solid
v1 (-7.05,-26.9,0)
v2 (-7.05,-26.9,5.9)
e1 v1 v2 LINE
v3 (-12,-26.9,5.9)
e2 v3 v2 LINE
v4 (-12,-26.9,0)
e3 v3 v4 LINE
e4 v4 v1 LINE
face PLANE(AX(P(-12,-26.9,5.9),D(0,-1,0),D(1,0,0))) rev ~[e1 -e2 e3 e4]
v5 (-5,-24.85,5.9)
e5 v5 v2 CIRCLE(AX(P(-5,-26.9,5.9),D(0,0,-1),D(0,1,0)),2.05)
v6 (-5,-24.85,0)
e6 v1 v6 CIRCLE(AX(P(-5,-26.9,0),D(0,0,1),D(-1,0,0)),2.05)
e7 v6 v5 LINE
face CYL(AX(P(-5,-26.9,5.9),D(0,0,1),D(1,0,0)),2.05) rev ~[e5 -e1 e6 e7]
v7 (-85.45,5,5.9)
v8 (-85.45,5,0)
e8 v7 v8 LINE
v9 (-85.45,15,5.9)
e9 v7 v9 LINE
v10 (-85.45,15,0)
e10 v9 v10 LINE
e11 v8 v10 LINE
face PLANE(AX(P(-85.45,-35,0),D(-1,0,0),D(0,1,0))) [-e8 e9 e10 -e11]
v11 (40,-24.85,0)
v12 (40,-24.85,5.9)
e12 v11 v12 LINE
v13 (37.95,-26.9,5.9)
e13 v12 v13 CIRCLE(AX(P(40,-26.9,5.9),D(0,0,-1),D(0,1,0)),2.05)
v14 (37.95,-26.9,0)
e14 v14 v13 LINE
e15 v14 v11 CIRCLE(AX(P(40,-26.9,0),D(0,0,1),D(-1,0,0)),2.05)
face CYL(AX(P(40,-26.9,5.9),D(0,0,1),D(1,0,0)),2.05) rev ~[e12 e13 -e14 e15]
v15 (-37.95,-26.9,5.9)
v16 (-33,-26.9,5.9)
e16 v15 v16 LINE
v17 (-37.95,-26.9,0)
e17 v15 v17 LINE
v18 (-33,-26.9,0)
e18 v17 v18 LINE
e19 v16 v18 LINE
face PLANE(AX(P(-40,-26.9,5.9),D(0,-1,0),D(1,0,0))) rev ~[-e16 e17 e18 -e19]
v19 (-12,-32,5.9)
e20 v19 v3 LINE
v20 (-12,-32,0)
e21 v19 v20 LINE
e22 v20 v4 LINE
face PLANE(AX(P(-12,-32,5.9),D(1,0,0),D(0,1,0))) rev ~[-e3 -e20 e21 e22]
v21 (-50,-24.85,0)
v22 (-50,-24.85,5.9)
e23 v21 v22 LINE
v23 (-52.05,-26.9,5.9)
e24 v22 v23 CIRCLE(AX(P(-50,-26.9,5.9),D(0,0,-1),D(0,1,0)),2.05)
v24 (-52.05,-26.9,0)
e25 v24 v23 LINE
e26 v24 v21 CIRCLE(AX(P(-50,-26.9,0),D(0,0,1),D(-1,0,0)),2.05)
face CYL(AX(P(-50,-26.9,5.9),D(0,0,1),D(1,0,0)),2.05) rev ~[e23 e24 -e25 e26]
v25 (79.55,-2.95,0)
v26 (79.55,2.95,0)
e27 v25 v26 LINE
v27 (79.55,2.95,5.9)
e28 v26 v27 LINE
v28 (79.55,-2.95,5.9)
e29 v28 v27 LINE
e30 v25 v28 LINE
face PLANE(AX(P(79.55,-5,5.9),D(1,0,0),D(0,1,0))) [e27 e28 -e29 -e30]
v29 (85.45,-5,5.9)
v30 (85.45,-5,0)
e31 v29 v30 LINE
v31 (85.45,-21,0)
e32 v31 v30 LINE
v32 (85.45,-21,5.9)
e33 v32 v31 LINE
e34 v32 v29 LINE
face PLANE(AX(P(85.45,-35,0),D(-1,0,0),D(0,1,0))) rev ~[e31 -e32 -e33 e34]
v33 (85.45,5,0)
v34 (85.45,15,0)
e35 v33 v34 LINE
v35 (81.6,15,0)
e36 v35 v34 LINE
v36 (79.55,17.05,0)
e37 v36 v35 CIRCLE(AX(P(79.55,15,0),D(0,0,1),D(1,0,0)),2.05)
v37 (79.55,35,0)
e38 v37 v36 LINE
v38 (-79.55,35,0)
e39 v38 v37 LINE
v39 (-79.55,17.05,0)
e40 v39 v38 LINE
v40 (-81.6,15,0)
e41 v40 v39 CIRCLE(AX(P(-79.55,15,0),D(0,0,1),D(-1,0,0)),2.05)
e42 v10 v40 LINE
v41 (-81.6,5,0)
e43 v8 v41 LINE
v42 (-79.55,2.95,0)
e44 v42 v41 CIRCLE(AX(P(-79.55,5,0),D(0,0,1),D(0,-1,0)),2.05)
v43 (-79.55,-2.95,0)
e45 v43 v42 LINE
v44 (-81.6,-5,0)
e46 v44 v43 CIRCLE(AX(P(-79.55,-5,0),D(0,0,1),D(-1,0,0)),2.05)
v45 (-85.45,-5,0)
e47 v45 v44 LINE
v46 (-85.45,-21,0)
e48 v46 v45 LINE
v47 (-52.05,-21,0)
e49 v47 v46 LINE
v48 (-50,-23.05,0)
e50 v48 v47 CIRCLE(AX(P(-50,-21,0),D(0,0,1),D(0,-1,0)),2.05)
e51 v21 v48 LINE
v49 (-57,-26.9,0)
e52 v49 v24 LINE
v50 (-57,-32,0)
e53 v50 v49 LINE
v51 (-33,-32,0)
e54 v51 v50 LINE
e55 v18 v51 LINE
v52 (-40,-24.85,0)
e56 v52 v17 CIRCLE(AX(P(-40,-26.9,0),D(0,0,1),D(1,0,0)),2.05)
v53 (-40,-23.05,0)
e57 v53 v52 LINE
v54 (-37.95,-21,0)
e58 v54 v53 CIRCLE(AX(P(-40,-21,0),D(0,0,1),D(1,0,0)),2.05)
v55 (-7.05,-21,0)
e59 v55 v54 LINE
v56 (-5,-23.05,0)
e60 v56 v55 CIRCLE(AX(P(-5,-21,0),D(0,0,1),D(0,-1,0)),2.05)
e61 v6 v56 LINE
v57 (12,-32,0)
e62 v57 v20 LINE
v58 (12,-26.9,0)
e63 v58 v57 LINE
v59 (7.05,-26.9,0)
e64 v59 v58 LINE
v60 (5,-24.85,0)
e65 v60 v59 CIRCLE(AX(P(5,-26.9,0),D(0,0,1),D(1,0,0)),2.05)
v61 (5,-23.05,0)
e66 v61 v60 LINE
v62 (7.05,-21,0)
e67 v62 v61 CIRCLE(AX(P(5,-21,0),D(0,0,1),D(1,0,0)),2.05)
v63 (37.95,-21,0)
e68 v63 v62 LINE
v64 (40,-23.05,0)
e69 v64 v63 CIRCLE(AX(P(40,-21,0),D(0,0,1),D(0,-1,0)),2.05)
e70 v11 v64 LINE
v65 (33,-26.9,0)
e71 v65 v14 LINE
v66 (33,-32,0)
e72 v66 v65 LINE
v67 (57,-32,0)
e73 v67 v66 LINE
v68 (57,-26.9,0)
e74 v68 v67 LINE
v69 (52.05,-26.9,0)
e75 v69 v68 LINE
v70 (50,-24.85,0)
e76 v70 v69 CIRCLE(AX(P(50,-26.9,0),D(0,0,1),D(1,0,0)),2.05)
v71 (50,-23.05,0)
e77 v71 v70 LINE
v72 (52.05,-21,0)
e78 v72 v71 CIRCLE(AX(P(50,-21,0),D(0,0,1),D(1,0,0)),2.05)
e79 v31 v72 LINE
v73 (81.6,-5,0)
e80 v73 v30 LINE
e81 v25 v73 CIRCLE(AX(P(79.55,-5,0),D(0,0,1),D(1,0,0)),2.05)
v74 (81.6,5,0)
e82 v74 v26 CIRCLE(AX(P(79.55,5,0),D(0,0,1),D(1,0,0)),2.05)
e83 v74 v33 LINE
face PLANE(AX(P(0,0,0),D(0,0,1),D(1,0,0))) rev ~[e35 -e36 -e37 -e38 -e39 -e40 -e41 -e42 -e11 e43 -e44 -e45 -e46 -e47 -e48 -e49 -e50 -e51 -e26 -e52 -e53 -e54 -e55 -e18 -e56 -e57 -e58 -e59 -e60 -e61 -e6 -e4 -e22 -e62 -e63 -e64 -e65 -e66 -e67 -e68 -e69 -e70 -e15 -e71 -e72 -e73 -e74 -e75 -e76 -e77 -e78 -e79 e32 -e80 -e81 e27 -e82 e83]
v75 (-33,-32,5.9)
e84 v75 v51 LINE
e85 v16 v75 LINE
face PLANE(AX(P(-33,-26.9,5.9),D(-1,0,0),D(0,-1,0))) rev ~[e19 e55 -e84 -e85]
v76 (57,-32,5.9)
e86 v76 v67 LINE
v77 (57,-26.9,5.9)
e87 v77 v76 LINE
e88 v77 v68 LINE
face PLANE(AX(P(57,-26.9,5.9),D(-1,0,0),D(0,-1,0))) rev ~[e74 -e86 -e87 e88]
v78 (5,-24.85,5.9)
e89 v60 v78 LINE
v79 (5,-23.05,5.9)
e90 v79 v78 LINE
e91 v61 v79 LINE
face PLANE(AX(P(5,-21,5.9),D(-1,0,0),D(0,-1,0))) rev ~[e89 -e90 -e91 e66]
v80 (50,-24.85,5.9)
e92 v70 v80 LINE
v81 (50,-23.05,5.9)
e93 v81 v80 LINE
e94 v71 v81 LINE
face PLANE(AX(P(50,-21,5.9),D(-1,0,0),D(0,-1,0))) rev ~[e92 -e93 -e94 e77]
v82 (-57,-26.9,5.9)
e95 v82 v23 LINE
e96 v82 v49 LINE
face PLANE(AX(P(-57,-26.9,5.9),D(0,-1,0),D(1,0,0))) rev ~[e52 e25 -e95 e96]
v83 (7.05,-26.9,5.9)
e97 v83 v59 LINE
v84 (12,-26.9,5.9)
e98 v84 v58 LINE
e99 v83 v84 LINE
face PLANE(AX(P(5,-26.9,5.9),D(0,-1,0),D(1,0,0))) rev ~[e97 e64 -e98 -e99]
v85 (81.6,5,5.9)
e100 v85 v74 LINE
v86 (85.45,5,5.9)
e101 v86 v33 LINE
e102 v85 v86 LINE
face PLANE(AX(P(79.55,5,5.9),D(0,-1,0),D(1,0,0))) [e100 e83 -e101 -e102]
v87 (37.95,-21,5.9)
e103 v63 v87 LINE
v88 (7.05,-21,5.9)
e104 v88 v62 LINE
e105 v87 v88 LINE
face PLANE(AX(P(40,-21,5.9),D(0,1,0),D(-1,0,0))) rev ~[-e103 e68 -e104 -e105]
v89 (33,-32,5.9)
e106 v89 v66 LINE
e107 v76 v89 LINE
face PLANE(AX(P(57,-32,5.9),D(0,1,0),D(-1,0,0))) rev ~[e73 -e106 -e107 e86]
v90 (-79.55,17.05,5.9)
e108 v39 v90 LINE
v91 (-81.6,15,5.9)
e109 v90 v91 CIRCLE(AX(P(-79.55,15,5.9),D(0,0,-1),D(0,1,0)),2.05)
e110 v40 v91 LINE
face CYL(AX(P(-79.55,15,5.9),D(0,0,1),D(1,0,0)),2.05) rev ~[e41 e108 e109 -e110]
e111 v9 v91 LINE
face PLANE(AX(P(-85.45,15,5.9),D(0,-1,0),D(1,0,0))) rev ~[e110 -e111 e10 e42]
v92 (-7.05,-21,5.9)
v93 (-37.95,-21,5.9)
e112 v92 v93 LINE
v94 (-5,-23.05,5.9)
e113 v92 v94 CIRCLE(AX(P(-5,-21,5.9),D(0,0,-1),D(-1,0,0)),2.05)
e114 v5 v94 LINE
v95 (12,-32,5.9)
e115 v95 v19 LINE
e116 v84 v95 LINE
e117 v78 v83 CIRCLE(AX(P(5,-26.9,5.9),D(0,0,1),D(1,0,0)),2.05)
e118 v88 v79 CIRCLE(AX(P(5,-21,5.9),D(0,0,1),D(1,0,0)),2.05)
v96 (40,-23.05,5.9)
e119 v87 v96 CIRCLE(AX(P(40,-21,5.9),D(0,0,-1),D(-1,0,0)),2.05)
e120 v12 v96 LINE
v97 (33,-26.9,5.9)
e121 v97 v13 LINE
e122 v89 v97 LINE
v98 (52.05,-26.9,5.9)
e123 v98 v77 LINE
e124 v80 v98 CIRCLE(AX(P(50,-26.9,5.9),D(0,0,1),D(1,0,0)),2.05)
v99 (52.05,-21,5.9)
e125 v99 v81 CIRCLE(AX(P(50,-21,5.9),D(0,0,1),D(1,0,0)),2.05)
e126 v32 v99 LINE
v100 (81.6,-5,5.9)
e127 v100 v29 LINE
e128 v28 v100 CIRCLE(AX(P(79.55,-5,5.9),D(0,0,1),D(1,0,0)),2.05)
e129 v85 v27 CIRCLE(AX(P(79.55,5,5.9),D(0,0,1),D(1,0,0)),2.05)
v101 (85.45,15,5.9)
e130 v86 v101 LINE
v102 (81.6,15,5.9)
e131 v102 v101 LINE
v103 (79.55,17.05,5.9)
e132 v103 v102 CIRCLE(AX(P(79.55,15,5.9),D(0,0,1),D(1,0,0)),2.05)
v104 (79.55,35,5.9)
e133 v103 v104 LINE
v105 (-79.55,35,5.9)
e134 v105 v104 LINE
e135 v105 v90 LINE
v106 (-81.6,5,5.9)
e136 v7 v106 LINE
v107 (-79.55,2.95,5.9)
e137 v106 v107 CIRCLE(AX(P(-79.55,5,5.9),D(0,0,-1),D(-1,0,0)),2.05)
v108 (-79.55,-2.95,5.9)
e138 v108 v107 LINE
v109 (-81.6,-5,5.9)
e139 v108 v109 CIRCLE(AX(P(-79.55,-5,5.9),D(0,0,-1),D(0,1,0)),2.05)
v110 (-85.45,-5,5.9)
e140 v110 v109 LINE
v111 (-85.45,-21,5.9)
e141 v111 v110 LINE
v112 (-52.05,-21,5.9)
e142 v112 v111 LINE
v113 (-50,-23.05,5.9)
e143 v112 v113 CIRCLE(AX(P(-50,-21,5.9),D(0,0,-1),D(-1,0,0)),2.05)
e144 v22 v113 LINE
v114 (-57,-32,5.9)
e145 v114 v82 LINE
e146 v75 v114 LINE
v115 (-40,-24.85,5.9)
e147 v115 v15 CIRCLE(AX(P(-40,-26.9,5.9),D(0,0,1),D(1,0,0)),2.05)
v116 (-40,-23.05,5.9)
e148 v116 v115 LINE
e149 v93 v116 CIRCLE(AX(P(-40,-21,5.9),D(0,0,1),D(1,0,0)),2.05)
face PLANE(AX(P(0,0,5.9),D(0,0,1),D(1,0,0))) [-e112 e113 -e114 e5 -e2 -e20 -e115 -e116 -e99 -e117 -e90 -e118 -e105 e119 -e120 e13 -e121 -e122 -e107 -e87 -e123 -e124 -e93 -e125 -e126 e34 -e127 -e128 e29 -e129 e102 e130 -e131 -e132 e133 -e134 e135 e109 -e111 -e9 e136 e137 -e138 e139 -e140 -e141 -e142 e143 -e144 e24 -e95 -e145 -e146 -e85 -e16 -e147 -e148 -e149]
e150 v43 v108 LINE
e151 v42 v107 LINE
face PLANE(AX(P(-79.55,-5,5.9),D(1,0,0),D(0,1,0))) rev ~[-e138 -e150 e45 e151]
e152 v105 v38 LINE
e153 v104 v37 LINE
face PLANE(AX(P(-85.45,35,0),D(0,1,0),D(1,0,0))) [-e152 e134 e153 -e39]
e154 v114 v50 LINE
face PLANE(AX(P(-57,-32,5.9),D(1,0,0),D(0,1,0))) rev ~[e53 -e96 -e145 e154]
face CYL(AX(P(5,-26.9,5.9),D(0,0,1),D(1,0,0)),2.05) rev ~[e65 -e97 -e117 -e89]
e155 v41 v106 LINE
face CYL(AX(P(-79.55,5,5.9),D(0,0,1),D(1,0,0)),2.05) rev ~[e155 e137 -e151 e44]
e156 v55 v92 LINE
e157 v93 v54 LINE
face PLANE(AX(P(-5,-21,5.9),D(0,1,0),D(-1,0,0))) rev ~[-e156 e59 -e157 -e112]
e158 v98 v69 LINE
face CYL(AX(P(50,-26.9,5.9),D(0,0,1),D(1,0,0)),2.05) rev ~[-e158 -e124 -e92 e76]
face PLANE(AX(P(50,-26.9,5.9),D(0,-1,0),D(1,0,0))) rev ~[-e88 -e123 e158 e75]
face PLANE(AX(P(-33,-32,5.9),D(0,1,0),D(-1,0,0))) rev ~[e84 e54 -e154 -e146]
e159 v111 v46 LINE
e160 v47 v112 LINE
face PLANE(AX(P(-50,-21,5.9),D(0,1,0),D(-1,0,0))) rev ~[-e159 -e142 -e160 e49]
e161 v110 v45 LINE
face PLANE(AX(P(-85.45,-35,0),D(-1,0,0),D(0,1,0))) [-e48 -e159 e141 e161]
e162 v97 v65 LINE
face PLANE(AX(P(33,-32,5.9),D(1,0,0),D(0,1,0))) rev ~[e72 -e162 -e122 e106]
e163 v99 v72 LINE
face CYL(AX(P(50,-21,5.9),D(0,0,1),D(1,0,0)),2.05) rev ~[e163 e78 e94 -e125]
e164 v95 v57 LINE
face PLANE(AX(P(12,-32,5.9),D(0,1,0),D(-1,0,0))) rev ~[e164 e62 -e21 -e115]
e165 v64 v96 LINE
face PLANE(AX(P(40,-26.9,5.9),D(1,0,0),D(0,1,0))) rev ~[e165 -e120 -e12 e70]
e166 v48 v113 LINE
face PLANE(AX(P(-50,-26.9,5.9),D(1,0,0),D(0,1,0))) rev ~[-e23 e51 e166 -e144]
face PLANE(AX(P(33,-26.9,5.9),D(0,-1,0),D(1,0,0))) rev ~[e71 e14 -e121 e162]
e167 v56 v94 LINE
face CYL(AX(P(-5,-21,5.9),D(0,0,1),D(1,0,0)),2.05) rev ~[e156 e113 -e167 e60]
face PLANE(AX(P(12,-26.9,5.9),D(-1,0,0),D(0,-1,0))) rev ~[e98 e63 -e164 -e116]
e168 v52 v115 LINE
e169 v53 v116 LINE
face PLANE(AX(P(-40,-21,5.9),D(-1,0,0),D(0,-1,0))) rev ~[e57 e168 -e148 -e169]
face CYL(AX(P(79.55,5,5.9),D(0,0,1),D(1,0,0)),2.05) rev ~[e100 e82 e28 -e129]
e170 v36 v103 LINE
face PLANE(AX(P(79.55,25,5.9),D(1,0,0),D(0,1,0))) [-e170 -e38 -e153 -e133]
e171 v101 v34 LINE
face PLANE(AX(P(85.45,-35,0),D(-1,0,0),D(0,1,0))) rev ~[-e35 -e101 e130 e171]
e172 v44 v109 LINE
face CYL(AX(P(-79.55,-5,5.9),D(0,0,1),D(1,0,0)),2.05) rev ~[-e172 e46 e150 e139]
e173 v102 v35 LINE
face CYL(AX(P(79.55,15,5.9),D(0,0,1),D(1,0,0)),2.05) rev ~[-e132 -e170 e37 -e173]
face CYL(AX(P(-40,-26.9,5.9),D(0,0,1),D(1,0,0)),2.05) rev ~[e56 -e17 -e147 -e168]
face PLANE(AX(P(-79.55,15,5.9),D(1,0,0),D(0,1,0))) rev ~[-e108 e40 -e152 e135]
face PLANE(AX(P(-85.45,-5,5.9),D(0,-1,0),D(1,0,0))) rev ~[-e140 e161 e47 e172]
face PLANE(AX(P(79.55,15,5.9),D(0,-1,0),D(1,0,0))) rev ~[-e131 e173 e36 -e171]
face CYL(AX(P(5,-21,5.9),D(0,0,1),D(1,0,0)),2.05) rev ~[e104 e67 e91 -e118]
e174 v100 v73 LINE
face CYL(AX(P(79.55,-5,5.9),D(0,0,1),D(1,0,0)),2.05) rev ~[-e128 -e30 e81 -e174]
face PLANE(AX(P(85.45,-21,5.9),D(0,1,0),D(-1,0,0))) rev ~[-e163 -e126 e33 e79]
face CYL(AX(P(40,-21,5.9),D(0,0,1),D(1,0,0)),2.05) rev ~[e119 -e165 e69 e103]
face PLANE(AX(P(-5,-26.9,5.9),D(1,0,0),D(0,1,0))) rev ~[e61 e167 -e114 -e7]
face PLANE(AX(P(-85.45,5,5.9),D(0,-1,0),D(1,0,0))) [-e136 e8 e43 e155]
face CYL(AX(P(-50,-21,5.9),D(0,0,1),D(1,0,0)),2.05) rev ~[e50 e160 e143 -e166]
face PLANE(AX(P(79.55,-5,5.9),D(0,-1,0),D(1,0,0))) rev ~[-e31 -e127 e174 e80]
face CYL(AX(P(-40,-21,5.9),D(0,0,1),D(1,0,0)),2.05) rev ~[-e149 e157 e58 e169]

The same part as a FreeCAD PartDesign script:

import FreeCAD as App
import Part
import Sketcher
from FreeCAD import Vector
Q = App.Units.Quantity


def add_polygon(sketch, points):
    """Adds a closed chain of lines whose ends are joined by coincident constraints."""
    first, n = sketch.GeometryCount, len(points)
    for a, b in zip(points, points[1:] + points[:1]):
        sketch.addGeometry(Part.LineSegment(App.Vector(*a, 0), App.Vector(*b, 0)), False)
    for i in range(n):
        sketch.addConstraint(Sketcher.Constraint("Coincident", first + i, 2, first + (i + 1) % n, 1))

doc = App.newDocument("Part")
body = doc.addObject("PartDesign::Body", "Body")

sketch1 = body.newObject("Sketcher::SketchObject", "Sketch")
sketch1.AttachmentSupport = (doc.getObject("XY_Plane"), [""])
sketch1.MapMode = "FlatFace"
add_polygon(sketch1, [(-85, 35), (-85, -35), (85, -35), (85, 35)])
sketch1.addConstraint([
    Sketcher.Constraint("Vertical", 0),
    Sketcher.Constraint("Horizontal", 1),
    Sketcher.Constraint("Vertical", 2),
    Sketcher.Constraint("Horizontal", 3),
    Sketcher.Constraint("Symmetric", 0, 2, 2, 2, -1, 1),
    Sketcher.Constraint("DistanceY", 0, 2, 0, 1, Q("70 mm")),
    Sketcher.Constraint("DistanceX", 1, 1, 1, 2, Q("170.9 mm")),
])
pad1 = body.newObject("PartDesign::Pad", "Pad")
pad1.Profile = sketch1
pad1.Length = 5.9

sketch2 = body.newObject("Sketcher::SketchObject", "Sketch001")
sketch2.AttachmentSupport = (doc.getObject("XY_Plane"), [""])
sketch2.MapMode = "FlatFace"
sketch2.AttachmentOffset = App.Placement(Vector(0, 0, 5.9), App.Rotation())
add_polygon(sketch2, [(-50, -21), (-85, -21), (-85, -35), (85, -35), (85, -21), (50, -21), (50, -27), (57, -27), (57, -32), (33, -32), (33, -27), (40, -27), (40, -21), (5, -21), (5, -27), (12, -27), (12, -32), (-12, -32), (-12, -27), (-5, -27), (-5, -21), (-40, -21), (-40, -27), (-33, -27), (-33, -32), (-57, -32), (-57, -27), (-50, -27)])
sketch2.addConstraint([
    Sketcher.Constraint("Horizontal", 0),
    Sketcher.Constraint("Vertical", 1),
    Sketcher.Constraint("Horizontal", 2),
    Sketcher.Constraint("Vertical", 3),
    Sketcher.Constraint("Horizontal", 4),
    Sketcher.Constraint("Vertical", 5),
    Sketcher.Constraint("Horizontal", 6),
    Sketcher.Constraint("Vertical", 7),
    Sketcher.Constraint("Horizontal", 8),
    Sketcher.Constraint("Vertical", 9),
    Sketcher.Constraint("Horizontal", 10),
    Sketcher.Constraint("Vertical", 11),
    Sketcher.Constraint("Horizontal", 12),
    Sketcher.Constraint("Vertical", 13),
    Sketcher.Constraint("Horizontal", 14),
    Sketcher.Constraint("Vertical", 15),
    Sketcher.Constraint("Horizontal", 16),
    Sketcher.Constraint("Vertical", 17),
    Sketcher.Constraint("Horizontal", 18),
    Sketcher.Constraint("Vertical", 19),
    Sketcher.Constraint("Horizontal", 20),
    Sketcher.Constraint("Vertical", 21),
    Sketcher.Constraint("Horizontal", 22),
    Sketcher.Constraint("Vertical", 23),
    Sketcher.Constraint("Horizontal", 24),
    Sketcher.Constraint("Vertical", 25),
    Sketcher.Constraint("Horizontal", 26),
    Sketcher.Constraint("Vertical", 27),
    Sketcher.Constraint("Symmetric", 0, 2, 3, 2, -2),
    Sketcher.Constraint("Symmetric", 14, 2, 17, 2, -2),
    Sketcher.Constraint("Symmetric", 12, 2, 19, 2, -2),
    Sketcher.Constraint("Symmetric", 10, 2, 21, 2, -2),
    Sketcher.Constraint("Symmetric", 8, 2, 23, 2, -2),
    Sketcher.Constraint("Symmetric", 6, 2, 25, 2, -2),
    Sketcher.Constraint("Horizontal", 6, 2, 9, 2),
    Sketcher.Constraint("Horizontal", 4, 2, 11, 2),
    Sketcher.Constraint("Horizontal", 10, 2, 13, 2),
    Sketcher.Constraint("Horizontal", 8, 2, 15, 2),
    Sketcher.Constraint("Equal", 0, 4),
    Sketcher.Constraint("Equal", 6, 10),
    Sketcher.Constraint("Equal", 10, 14),
    Sketcher.Constraint("Equal", 8, 16),
    Sketcher.Constraint("DistanceX", 6, 1, 6, 2, Q("7 mm")),
    Sketcher.Constraint("DistanceX", 8, 2, 8, 1, Q("24 mm")),
    Sketcher.Constraint("DistanceX", 12, 2, 12, 1, Q("35 mm")),
    Sketcher.Constraint("DistanceY", 1, 2, 1, 1, Q("14 mm")),
    Sketcher.Constraint("DistanceX", 2, 1, 2, 2, Q("170.9 mm")),
    Sketcher.Constraint("DistanceY", 5, 2, 5, 1, Q("5.9 mm")),
    Sketcher.Constraint("DistanceY", 7, 2, 7, 1, Q("5.1 mm")),
    Sketcher.Constraint("DistanceY", 0, 2, -1, 1, Q("21 mm")),
])
pocket1 = body.newObject("PartDesign::Pocket", "Pocket")
pocket1.Profile = sketch2
pocket1.Type = "ThroughAll"

sketch3 = body.newObject("Sketcher::SketchObject", "Sketch002")
sketch3.AttachmentSupport = (doc.getObject("XY_Plane"), [""])
sketch3.MapMode = "FlatFace"
sketch3.AttachmentOffset = App.Placement(Vector(0, 0, 5.9), App.Rotation())
add_polygon(sketch3, [(80, 25), (80, 15), (85, 15), (85, 25)])
add_polygon(sketch3, [(80, 5), (80, -5), (85, -5), (85, 5)])
add_polygon(sketch3, [(-85, 5), (-85, -5), (-80, -5), (-80, 5)])
add_polygon(sketch3, [(-85, 25), (-85, 15), (-80, 15), (-80, 25)])
sketch3.addConstraint([
    Sketcher.Constraint("Vertical", 0),
    Sketcher.Constraint("Horizontal", 1),
    Sketcher.Constraint("Vertical", 2),
    Sketcher.Constraint("Horizontal", 3),
    Sketcher.Constraint("Vertical", 4),
    Sketcher.Constraint("Horizontal", 5),
    Sketcher.Constraint("Vertical", 6),
    Sketcher.Constraint("Horizontal", 7),
    Sketcher.Constraint("Vertical", 8),
    Sketcher.Constraint("Horizontal", 9),
    Sketcher.Constraint("Vertical", 10),
    Sketcher.Constraint("Horizontal", 11),
    Sketcher.Constraint("Vertical", 12),
    Sketcher.Constraint("Horizontal", 13),
    Sketcher.Constraint("Vertical", 14),
    Sketcher.Constraint("Horizontal", 15),
    Sketcher.Constraint("Symmetric", 6, 2, 8, 2, -1, 1),
    Sketcher.Constraint("Symmetric", 4, 2, 10, 2, -1, 1),
    Sketcher.Constraint("Symmetric", 1, 2, 12, 2, -2),
    Sketcher.Constraint("Symmetric", 3, 2, 14, 2, -2),
    Sketcher.Constraint("Horizontal", 5, 2, 8, 2),
    Sketcher.Constraint("Vertical", 3, 2, 4, 2),
    Sketcher.Constraint("Vertical", 2, 2, 5, 2),
    Sketcher.Constraint("Equal", 2, 4),
    Sketcher.Constraint("DistanceY", 0, 2, 0, 1, Q("10 mm")),
    Sketcher.Constraint("DistanceX", 1, 1, 1, 2, Q("5.9 mm")),
    Sketcher.Constraint("DistanceY", -1, 1, 0, 2, Q("15 mm")),
    Sketcher.Constraint("DistanceX", 8, 2, 4, 2, Q("165 mm")),
])
pocket2 = body.newObject("PartDesign::Pocket", "Pocket001")
pocket2.Profile = sketch3
pocket2.Type = "ThroughAll"

sketch4 = body.newObject("Sketcher::SketchObject", "Sketch003")
sketch4.AttachmentSupport = (doc.getObject("XY_Plane"), [""])
sketch4.MapMode = "FlatFace"
sketch4.AttachmentOffset = App.Placement(Vector(0, 0, 5.9), App.Rotation())
add_polygon(sketch4, [(80, 35), (80, 25), (85, 25), (85, 35)])
add_polygon(sketch4, [(-85, 35), (-85, 25), (-80, 25), (-80, 35)])
sketch4.addConstraint([
    Sketcher.Constraint("Vertical", 0),
    Sketcher.Constraint("Horizontal", 1),
    Sketcher.Constraint("Vertical", 2),
    Sketcher.Constraint("Horizontal", 3),
    Sketcher.Constraint("Vertical", 4),
    Sketcher.Constraint("Horizontal", 5),
    Sketcher.Constraint("Vertical", 6),
    Sketcher.Constraint("Horizontal", 7),
    Sketcher.Constraint("Symmetric", 1, 2, 4, 2, -2),
    Sketcher.Constraint("Symmetric", 3, 2, 6, 2, -2),
    Sketcher.Constraint("DistanceY", 0, 2, 0, 1, Q("10 mm")),
    Sketcher.Constraint("DistanceX", 1, 1, 1, 2, Q("5.9 mm")),
    Sketcher.Constraint("DistanceY", -1, 1, 0, 2, Q("25 mm")),
    Sketcher.Constraint("DistanceX", 4, 2, 0, 2, Q("165 mm")),
])
pocket3 = body.newObject("PartDesign::Pocket", "Pocket002")
pocket3.Profile = sketch4
pocket3.Type = "ThroughAll"

sketch5 = body.newObject("Sketcher::SketchObject", "Sketch004")
sketch5.AttachmentSupport = (doc.getObject("XY_Plane"), [""])
sketch5.MapMode = "FlatFace"
sketch5.AttachmentOffset = App.Placement(Vector(0, 0, 5.9), App.Rotation())
sketch5.addGeometry(Part.Circle(Vector(-50, -26.9, 0), Vector(0, 0, 1), 2), False)
sketch5.addConstraint([
    Sketcher.Constraint("Diameter", 0, Q("4.1 mm")),
    Sketcher.Constraint("DistanceX", 0, 3, -1, 1, Q("50 mm")),
    Sketcher.Constraint("DistanceY", 0, 3, -1, 1, Q("26.9 mm")),
])
pocket4 = body.newObject("PartDesign::Pocket", "Pocket003")
pocket4.Profile = sketch5
pocket4.Type = "UpToFirst"

sketch6 = body.newObject("Sketcher::SketchObject", "Sketch005")
sketch6.AttachmentSupport = (doc.getObject("XY_Plane"), [""])
sketch6.MapMode = "FlatFace"
sketch6.AttachmentOffset = App.Placement(Vector(0, 0, 5.9), App.Rotation())
sketch6.addGeometry(Part.Circle(Vector(-40, -26.9, 0), Vector(0, 0, 1), 2), False)
sketch6.addConstraint([
    Sketcher.Constraint("Diameter", 0, Q("4.1 mm")),
    Sketcher.Constraint("DistanceX", 0, 3, -1, 1, Q("40 mm")),
    Sketcher.Constraint("DistanceY", 0, 3, -1, 1, Q("26.9 mm")),
])
pocket5 = body.newObject("PartDesign::Pocket", "Pocket004")
pocket5.Profile = sketch6
pocket5.Type = "UpToFirst"

sketch7 = body.newObject("Sketcher::SketchObject", "Sketch006")
sketch7.AttachmentSupport = (doc.getObject("XY_Plane"), [""])
sketch7.MapMode = "FlatFace"
sketch7.AttachmentOffset = App.Placement(Vector(0, 0, 5.9), App.Rotation())
sketch7.addGeometry(Part.Circle(Vector(-50, -21, 0), Vector(0, 0, 1), 2), False)
sketch7.addConstraint([
    Sketcher.Constraint("Diameter", 0, Q("4.1 mm")),
    Sketcher.Constraint("DistanceX", 0, 3, -1, 1, Q("50 mm")),
    Sketcher.Constraint("DistanceY", 0, 3, -1, 1, Q("21 mm")),
])
pocket6 = body.newObject("PartDesign::Pocket", "Pocket005")
pocket6.Profile = sketch7
pocket6.Type = "UpToFirst"

sketch8 = body.newObject("Sketcher::SketchObject", "Sketch007")
sketch8.AttachmentSupport = (doc.getObject("XY_Plane"), [""])
sketch8.MapMode = "FlatFace"
sketch8.AttachmentOffset = App.Placement(Vector(0, 0, 5.9), App.Rotation())
sketch8.addGeometry(Part.Circle(Vector(-40, -21, 0), Vector(0, 0, 1), 2), False)
sketch8.addConstraint([
    Sketcher.Constraint("Diameter", 0, Q("4.1 mm")),
    Sketcher.Constraint("DistanceX", 0, 3, -1, 1, Q("40 mm")),
    Sketcher.Constraint("DistanceY", 0, 3, -1, 1, Q("21 mm")),
])
pocket7 = body.newObject("PartDesign::Pocket", "Pocket006")
pocket7.Profile = sketch8
pocket7.Type = "UpToFirst"

sketch9 = body.newObject("Sketcher::SketchObject", "Sketch008")
sketch9.AttachmentSupport = (doc.getObject("XY_Plane"), [""])
sketch9.MapMode = "FlatFace"
sketch9.AttachmentOffset = App.Placement(Vector(0, 0, 5.9), App.Rotation())
sketch9.addGeometry(Part.Circle(Vector(-5, -21, 0), Vector(0, 0, 1), 2), False)
sketch9.addConstraint([
    Sketcher.Constraint("Diameter", 0, Q("4.1 mm")),
    Sketcher.Constraint("DistanceX", 0, 3, -1, 1, Q("5 mm")),
    Sketcher.Constraint("DistanceY", 0, 3, -1, 1, Q("21 mm")),
])
pocket8 = body.newObject("PartDesign::Pocket", "Pocket007")
pocket8.Profile = sketch9
pocket8.Type = "UpToFirst"

sketch10 = body.newObject("Sketcher::SketchObject", "Sketch009")
sketch10.AttachmentSupport = (doc.getObject("XY_Plane"), [""])
sketch10.MapMode = "FlatFace"
sketch10.AttachmentOffset = App.Placement(Vector(0, 0, 5.9), App.Rotation())
sketch10.addGeometry(Part.Circle(Vector(5, -21, 0), Vector(0, 0, 1), 2), False)
sketch10.addConstraint([
    Sketcher.Constraint("Diameter", 0, Q("4.1 mm")),
    Sketcher.Constraint("DistanceX", -1, 1, 0, 3, Q("5 mm")),
    Sketcher.Constraint("DistanceY", 0, 3, -1, 1, Q("21 mm")),
])
pocket9 = body.newObject("PartDesign::Pocket", "Pocket008")
pocket9.Profile = sketch10
pocket9.Type = "UpToFirst"

sketch11 = body.newObject("Sketcher::SketchObject", "Sketch010")
sketch11.AttachmentSupport = (doc.getObject("XY_Plane"), [""])
sketch11.MapMode = "FlatFace"
sketch11.AttachmentOffset = App.Placement(Vector(0, 0, 5.9), App.Rotation())
sketch11.addGeometry(Part.Circle(Vector(-5, -26.9, 0), Vector(0, 0, 1), 2), False)
sketch11.addConstraint([
    Sketcher.Constraint("Diameter", 0, Q("4.1 mm")),
    Sketcher.Constraint("DistanceX", 0, 3, -1, 1, Q("5 mm")),
    Sketcher.Constraint("DistanceY", 0, 3, -1, 1, Q("26.9 mm")),
])
pocket10 = body.newObject("PartDesign::Pocket", "Pocket009")
pocket10.Profile = sketch11
pocket10.Type = "UpToFirst"

sketch12 = body.newObject("Sketcher::SketchObject", "Sketch011")
sketch12.AttachmentSupport = (doc.getObject("XY_Plane"), [""])
sketch12.MapMode = "FlatFace"
sketch12.AttachmentOffset = App.Placement(Vector(0, 0, 5.9), App.Rotation())
sketch12.addGeometry(Part.Circle(Vector(5, -26.9, 0), Vector(0, 0, 1), 2), False)
sketch12.addConstraint([
    Sketcher.Constraint("Diameter", 0, Q("4.1 mm")),
    Sketcher.Constraint("DistanceX", -1, 1, 0, 3, Q("5 mm")),
    Sketcher.Constraint("DistanceY", 0, 3, -1, 1, Q("26.9 mm")),
])
pocket11 = body.newObject("PartDesign::Pocket", "Pocket010")
pocket11.Profile = sketch12
pocket11.Type = "UpToFirst"

sketch13 = body.newObject("Sketcher::SketchObject", "Sketch012")
sketch13.AttachmentSupport = (doc.getObject("XY_Plane"), [""])
sketch13.MapMode = "FlatFace"
sketch13.AttachmentOffset = App.Placement(Vector(0, 0, 5.9), App.Rotation())
sketch13.addGeometry(Part.Circle(Vector(40, -26.9, 0), Vector(0, 0, 1), 2), False)
sketch13.addConstraint([
    Sketcher.Constraint("Diameter", 0, Q("4.1 mm")),
    Sketcher.Constraint("DistanceX", -1, 1, 0, 3, Q("40 mm")),
    Sketcher.Constraint("DistanceY", 0, 3, -1, 1, Q("26.9 mm")),
])
pocket12 = body.newObject("PartDesign::Pocket", "Pocket011")
pocket12.Profile = sketch13
pocket12.Type = "UpToFirst"

sketch14 = body.newObject("Sketcher::SketchObject", "Sketch013")
sketch14.AttachmentSupport = (doc.getObject("XY_Plane"), [""])
sketch14.MapMode = "FlatFace"
sketch14.AttachmentOffset = App.Placement(Vector(0, 0, 5.9), App.Rotation())
sketch14.addGeometry(Part.Circle(Vector(50, -26.9, 0), Vector(0, 0, 1), 2), False)
sketch14.addConstraint([
    Sketcher.Constraint("Diameter", 0, Q("4.1 mm")),
    Sketcher.Constraint("DistanceX", -1, 1, 0, 3, Q("50 mm")),
    Sketcher.Constraint("DistanceY", 0, 3, -1, 1, Q("26.9 mm")),
])
pocket13 = body.newObject("PartDesign::Pocket", "Pocket012")
pocket13.Profile = sketch14
pocket13.Type = "UpToFirst"

sketch15 = body.newObject("Sketcher::SketchObject", "Sketch014")
sketch15.AttachmentSupport = (doc.getObject("XY_Plane"), [""])
sketch15.MapMode = "FlatFace"
sketch15.AttachmentOffset = App.Placement(Vector(0, 0, 5.9), App.Rotation())
sketch15.addGeometry(Part.Circle(Vector(50, -21, 0), Vector(0, 0, 1), 2), False)
sketch15.addConstraint([
    Sketcher.Constraint("Diameter", 0, Q("4.1 mm")),
    Sketcher.Constraint("DistanceX", -1, 1, 0, 3, Q("50 mm")),
    Sketcher.Constraint("DistanceY", 0, 3, -1, 1, Q("21 mm")),
])
pocket14 = body.newObject("PartDesign::Pocket", "Pocket013")
pocket14.Profile = sketch15
pocket14.Type = "UpToFirst"

sketch16 = body.newObject("Sketcher::SketchObject", "Sketch015")
sketch16.AttachmentSupport = (doc.getObject("XY_Plane"), [""])
sketch16.MapMode = "FlatFace"
sketch16.AttachmentOffset = App.Placement(Vector(0, 0, 5.9), App.Rotation())
sketch16.addGeometry(Part.Circle(Vector(40, -21, 0), Vector(0, 0, 1), 2), False)
sketch16.addConstraint([
    Sketcher.Constraint("Diameter", 0, Q("4.1 mm")),
    Sketcher.Constraint("DistanceX", -1, 1, 0, 3, Q("40 mm")),
    Sketcher.Constraint("DistanceY", 0, 3, -1, 1, Q("21 mm")),
])
pocket15 = body.newObject("PartDesign::Pocket", "Pocket014")
pocket15.Profile = sketch16
pocket15.Type = "UpToFirst"

sketch17 = body.newObject("Sketcher::SketchObject", "Sketch016")
sketch17.AttachmentSupport = (doc.getObject("XY_Plane"), [""])
sketch17.MapMode = "FlatFace"
sketch17.AttachmentOffset = App.Placement(Vector(0, 0, 5.9), App.Rotation())
sketch17.addGeometry(Part.Circle(Vector(79.5, -5, 0), Vector(0, 0, 1), 2), False)
sketch17.addConstraint([
    Sketcher.Constraint("Diameter", 0, Q("4.1 mm")),
    Sketcher.Constraint("DistanceY", 0, 3, -1, 1, Q("5 mm")),
    Sketcher.Constraint("DistanceX", -1, 1, 0, 3, Q("79.55 mm")),
])
pocket16 = body.newObject("PartDesign::Pocket", "Pocket015")
pocket16.Profile = sketch17
pocket16.Type = "UpToFirst"

sketch18 = body.newObject("Sketcher::SketchObject", "Sketch017")
sketch18.AttachmentSupport = (doc.getObject("XY_Plane"), [""])
sketch18.MapMode = "FlatFace"
sketch18.AttachmentOffset = App.Placement(Vector(0, 0, 5.9), App.Rotation())
sketch18.addGeometry(Part.Circle(Vector(79.5, 5, 0), Vector(0, 0, 1), 2), False)
sketch18.addConstraint([
    Sketcher.Constraint("Diameter", 0, Q("4.1 mm")),
    Sketcher.Constraint("DistanceY", -1, 1, 0, 3, Q("5 mm")),
    Sketcher.Constraint("DistanceX", -1, 1, 0, 3, Q("79.55 mm")),
])
pocket17 = body.newObject("PartDesign::Pocket", "Pocket016")
pocket17.Profile = sketch18
pocket17.Type = "UpToFirst"

sketch19 = body.newObject("Sketcher::SketchObject", "Sketch018")
sketch19.AttachmentSupport = (doc.getObject("XY_Plane"), [""])
sketch19.MapMode = "FlatFace"
sketch19.AttachmentOffset = App.Placement(Vector(0, 0, 5.9), App.Rotation())
sketch19.addGeometry(Part.Circle(Vector(79.5, 15, 0), Vector(0, 0, 1), 2), False)
sketch19.addConstraint([
    Sketcher.Constraint("Diameter", 0, Q("4.1 mm")),
    Sketcher.Constraint("DistanceY", -1, 1, 0, 3, Q("15 mm")),
    Sketcher.Constraint("DistanceX", -1, 1, 0, 3, Q("79.55 mm")),
])
pocket18 = body.newObject("PartDesign::Pocket", "Pocket017")
pocket18.Profile = sketch19
pocket18.Type = "UpToFirst"

sketch20 = body.newObject("Sketcher::SketchObject", "Sketch019")
sketch20.AttachmentSupport = (doc.getObject("XY_Plane"), [""])
sketch20.MapMode = "FlatFace"
sketch20.AttachmentOffset = App.Placement(Vector(0, 0, 5.9), App.Rotation())
sketch20.addGeometry(Part.Circle(Vector(-79.5, 15, 0), Vector(0, 0, 1), 2), False)
sketch20.addConstraint([
    Sketcher.Constraint("Diameter", 0, Q("4.1 mm")),
    Sketcher.Constraint("DistanceY", -1, 1, 0, 3, Q("15 mm")),
    Sketcher.Constraint("DistanceX", 0, 3, -1, 1, Q("79.55 mm")),
])
pocket19 = body.newObject("PartDesign::Pocket", "Pocket018")
pocket19.Profile = sketch20
pocket19.Type = "UpToFirst"

sketch21 = body.newObject("Sketcher::SketchObject", "Sketch020")
sketch21.AttachmentSupport = (doc.getObject("XY_Plane"), [""])
sketch21.MapMode = "FlatFace"
sketch21.AttachmentOffset = App.Placement(Vector(0, 0, 5.9), App.Rotation())
sketch21.addGeometry(Part.Circle(Vector(-79.5, 5, 0), Vector(0, 0, 1), 2), False)
sketch21.addConstraint([
    Sketcher.Constraint("Diameter", 0, Q("4.1 mm")),
    Sketcher.Constraint("DistanceY", -1, 1, 0, 3, Q("5 mm")),
    Sketcher.Constraint("DistanceX", 0, 3, -1, 1, Q("79.55 mm")),
])
pocket20 = body.newObject("PartDesign::Pocket", "Pocket019")
pocket20.Profile = sketch21
pocket20.Type = "UpToFirst"

sketch22 = body.newObject("Sketcher::SketchObject", "Sketch021")
sketch22.AttachmentSupport = (doc.getObject("XY_Plane"), [""])
sketch22.MapMode = "FlatFace"
sketch22.AttachmentOffset = App.Placement(Vector(0, 0, 5.9), App.Rotation())
sketch22.addGeometry(Part.Circle(Vector(-79.5, -5, 0), Vector(0, 0, 1), 2), False)
sketch22.addConstraint([
    Sketcher.Constraint("Diameter", 0, Q("4.1 mm")),
    Sketcher.Constraint("DistanceY", 0, 3, -1, 1, Q("5 mm")),
    Sketcher.Constraint("DistanceX", 0, 3, -1, 1, Q("79.55 mm")),
])
pocket21 = body.newObject("PartDesign::Pocket", "Pocket020")
pocket21.Profile = sketch22
pocket21.Type = "UpToFirst"

doc.recompute()
